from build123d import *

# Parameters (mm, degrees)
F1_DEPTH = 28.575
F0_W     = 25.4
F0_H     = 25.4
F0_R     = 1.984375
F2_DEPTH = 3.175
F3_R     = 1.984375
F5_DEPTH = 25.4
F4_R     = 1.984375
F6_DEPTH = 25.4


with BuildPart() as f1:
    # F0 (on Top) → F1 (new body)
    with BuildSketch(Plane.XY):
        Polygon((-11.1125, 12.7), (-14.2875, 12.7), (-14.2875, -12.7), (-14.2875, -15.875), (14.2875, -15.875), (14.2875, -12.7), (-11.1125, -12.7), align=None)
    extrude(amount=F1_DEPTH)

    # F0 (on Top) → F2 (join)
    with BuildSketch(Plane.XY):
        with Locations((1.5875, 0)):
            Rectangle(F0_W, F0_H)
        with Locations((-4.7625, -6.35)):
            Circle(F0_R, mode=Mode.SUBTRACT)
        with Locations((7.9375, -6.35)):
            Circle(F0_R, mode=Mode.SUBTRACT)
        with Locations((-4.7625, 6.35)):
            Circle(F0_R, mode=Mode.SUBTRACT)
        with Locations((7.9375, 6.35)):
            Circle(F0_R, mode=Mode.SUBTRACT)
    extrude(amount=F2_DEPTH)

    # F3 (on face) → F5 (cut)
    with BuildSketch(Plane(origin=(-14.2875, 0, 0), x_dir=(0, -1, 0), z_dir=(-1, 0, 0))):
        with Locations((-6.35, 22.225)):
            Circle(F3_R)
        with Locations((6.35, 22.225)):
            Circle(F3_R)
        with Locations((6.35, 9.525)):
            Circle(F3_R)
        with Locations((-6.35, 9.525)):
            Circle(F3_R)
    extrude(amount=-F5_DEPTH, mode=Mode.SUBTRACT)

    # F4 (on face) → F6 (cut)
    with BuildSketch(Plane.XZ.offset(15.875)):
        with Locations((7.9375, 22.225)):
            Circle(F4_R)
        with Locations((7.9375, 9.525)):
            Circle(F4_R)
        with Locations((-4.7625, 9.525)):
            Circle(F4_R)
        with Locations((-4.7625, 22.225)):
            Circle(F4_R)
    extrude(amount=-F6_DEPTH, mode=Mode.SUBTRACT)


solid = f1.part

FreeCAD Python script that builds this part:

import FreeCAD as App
import Part
import Sketcher
Q = App.Units.Quantity

doc = App.newDocument("Part")
params = doc.addObject("Spreadsheet::Sheet", "Params")
for row, (alias, value) in enumerate([
    ("sketch1_width", "1 in"),
    ("sketch1_width2", "0.125 in"),
    ("pad1_length", "1.125 in"),
    ("sketch2_width", "1 in"),
    ("sketch2_diameter", "0.15625 in"),
    ("pad2_length", "0.125 in"),
    ("sketch3_diameter", "0.15625 in"),
    ("pocket1_length", "1 in"),
    ("sketch4_diameter", "0.15625 in"),
    ("pocket2_length", "1 in"),
], start=1):
    params.set(f"A{row}", alias)
    params.set(f"B{row}", "=" + value)
    params.setAlias(f"B{row}", alias)

body = doc.addObject("PartDesign::Body", "Body")

# Sketch on XY plane
sketch1 = body.newObject("Sketcher::SketchObject", "Sketch")
sketch1.AttachmentSupport = (doc.getObject("XY_Plane"), [""])
sketch1.MapMode = "FlatFace"
sketch1.addGeometry(Part.LineSegment(App.Vector(-11.1, 12.7, 0), App.Vector(-14.3, 12.7, 0)), False)
sketch1.addGeometry(Part.LineSegment(App.Vector(-14.3, 12.7, 0), App.Vector(-14.3, -15.9, 0)), False)
sketch1.addGeometry(Part.LineSegment(App.Vector(-14.3, -15.9, 0), App.Vector(14.3, -15.9, 0)), False)
sketch1.addGeometry(Part.LineSegment(App.Vector(14.3, -15.9, 0), App.Vector(14.3, -12.7, 0)), False)
sketch1.addGeometry(Part.LineSegment(App.Vector(14.3, -12.7, 0), App.Vector(-11.1, -12.7, 0)), False)
sketch1.addGeometry(Part.LineSegment(App.Vector(-11.1, -12.7, 0), App.Vector(-11.1, 12.7, 0)), False)
sketch1.addConstraint(Sketcher.Constraint("Coincident", 0, 2, 1, 1))
sketch1.addConstraint(Sketcher.Constraint("Coincident", 1, 2, 2, 1))
sketch1.addConstraint(Sketcher.Constraint("Coincident", 2, 2, 3, 1))
sketch1.addConstraint(Sketcher.Constraint("Coincident", 3, 2, 4, 1))
sketch1.addConstraint(Sketcher.Constraint("Coincident", 4, 2, 5, 1))
sketch1.addConstraint(Sketcher.Constraint("Coincident", 5, 2, 0, 1))
sketch1.addConstraint(Sketcher.Constraint("Horizontal", 0))
sketch1.addConstraint(Sketcher.Constraint("Vertical", 1))
sketch1.addConstraint(Sketcher.Constraint("Horizontal", 2))
sketch1.addConstraint(Sketcher.Constraint("Vertical", 3))
sketch1.addConstraint(Sketcher.Constraint("Horizontal", 4))
sketch1.addConstraint(Sketcher.Constraint("Vertical", 5))
sketch1.addConstraint(Sketcher.Constraint("Symmetric", 0, 2, 3, 2, -1, 1))
sketch1.addConstraint(Sketcher.Constraint("Equal", 2, 1))
sketch1.addConstraint(Sketcher.Constraint("Equal", 0, 3))
sketch1.addConstraint(Sketcher.Constraint("DistanceX", 4, 2, 4, 1, Q("1 in")))
sketch1.addConstraint(Sketcher.Constraint("DistanceX", 0, 2, 0, 1, Q("0.125 in")))
sketch1.setExpression("Constraints[15]", "Params.sketch1_width")
sketch1.setExpression("Constraints[16]", "Params.sketch1_width2")
pad1 = body.newObject("PartDesign::Pad", "Pad")
pad1.Profile = sketch1
pad1.setExpression("Length", "Params.pad1_length")

# Sketch on XY plane
sketch2 = body.newObject("Sketcher::SketchObject", "Sketch001")
sketch2.AttachmentSupport = (doc.getObject("XY_Plane"), [""])
sketch2.MapMode = "FlatFace"
sketch2.addGeometry(Part.LineSegment(App.Vector(-11.1, 12.7, 0), App.Vector(-11.1, -12.7, 0)), False)
sketch2.addGeometry(Part.LineSegment(App.Vector(-11.1, -12.7, 0), App.Vector(14.3, -12.7, 0)), False)
sketch2.addGeometry(Part.LineSegment(App.Vector(14.3, -12.7, 0), App.Vector(14.3, 12.7, 0)), False)
sketch2.addGeometry(Part.LineSegment(App.Vector(14.3, 12.7, 0), App.Vector(-11.1, 12.7, 0)), False)
sketch2.addGeometry(Part.Circle(App.Vector(-4.8, -6.3, 0), App.Vector(0, 0, 1), 2), False)
sketch2.addGeometry(Part.Circle(App.Vector(7.9, -6.3, 0), App.Vector(0, 0, 1), 2), False)
sketch2.addGeometry(Part.Circle(App.Vector(-4.8, 6.3, 0), App.Vector(0, 0, 1), 2), False)
sketch2.addGeometry(Part.Circle(App.Vector(7.9, 6.3, 0), App.Vector(0, 0, 1), 2), False)
sketch2.addConstraint(Sketcher.Constraint("Coincident", 0, 2, 1, 1))
sketch2.addConstraint(Sketcher.Constraint("Coincident", 1, 2, 2, 1))
sketch2.addConstraint(Sketcher.Constraint("Coincident", 2, 2, 3, 1))
sketch2.addConstraint(Sketcher.Constraint("Coincident", 3, 2, 0, 1))
sketch2.addConstraint(Sketcher.Constraint("Vertical", 0))
sketch2.addConstraint(Sketcher.Constraint("Horizontal", 1))
sketch2.addConstraint(Sketcher.Constraint("Vertical", 2))
sketch2.addConstraint(Sketcher.Constraint("Horizontal", 3))
sketch2.addConstraint(Sketcher.Constraint("Equal", 4, 5))
sketch2.addConstraint(Sketcher.Constraint("Equal", 5, 6))
sketch2.addConstraint(Sketcher.Constraint("Equal", 6, 7))
sketch2.addConstraint(Sketcher.Constraint("Symmetric", 4, 3, 6, 3, -1))
sketch2.addConstraint(Sketcher.Constraint("Symmetric", 5, 3, 7, 3, -1))
sketch2.addConstraint(Sketcher.Constraint("Horizontal", 4, 3, 5, 3))
sketch2.addConstraint(Sketcher.Constraint("Equal", 3, 0))
sketch2.addConstraint(Sketcher.Constraint("DistanceX", 1, 1, 1, 2, Q("1 in")))
sketch2.addConstraint(Sketcher.Constraint("Diameter", 4, Q("0.15625 in")))
sketch2.addConstraint(Sketcher.Constraint("DistanceY", 0, 2, -1, 1, Q("0.5 in")))
sketch2.addConstraint(Sketcher.Constraint("DistanceX", 4, 3, 5, 3, Q("0.5 in")))
sketch2.addConstraint(Sketcher.Constraint("DistanceY", 4, 3, 6, 3, Q("0.5 in")))
sketch2.addConstraint(Sketcher.Constraint("DistanceX", 0, 2, 4, 3, Q("0.25 in")))
sketch2.addConstraint(Sketcher.Constraint("DistanceX", 4, 3, -1, 1, Q("0.1875 in")))
sketch2.setExpression("Constraints[15]", "Params.sketch2_width")
sketch2.setExpression("Constraints[16]", "Params.sketch2_diameter")
pad2 = body.newObject("PartDesign::Pad", "Pad001")
pad2.Profile = sketch2
pad2.setExpression("Length", "Params.pad2_length")

# Sketch on YZ plane
sketch3 = body.newObject("Sketcher::SketchObject", "Sketch002")
sketch3.AttachmentSupport = (doc.getObject("YZ_Plane"), [""])
sketch3.MapMode = "FlatFace"
sketch3.AttachmentOffset = App.Placement(App.Vector(0, 0, -0.5625 * 25.4), App.Rotation())
sketch3.addGeometry(Part.Circle(App.Vector(6.3, 22.2, 0), App.Vector(0, 0, 1), 2), False)
sketch3.addGeometry(Part.Circle(App.Vector(-6.3, 22.2, 0), App.Vector(0, 0, 1), 2), False)
sketch3.addGeometry(Part.Circle(App.Vector(-6.3, 9.5, 0), App.Vector(0, 0, 1), 2), False)
sketch3.addGeometry(Part.Circle(App.Vector(6.3, 9.5, 0), App.Vector(0, 0, 1), 2), False)
sketch3.addConstraint(Sketcher.Constraint("Equal", 0, 1))
sketch3.addConstraint(Sketcher.Constraint("Equal", 1, 2))
sketch3.addConstraint(Sketcher.Constraint("Equal", 2, 3))
sketch3.addConstraint(Sketcher.Constraint("Symmetric", 0, 3, 1, 3, -2))
sketch3.addConstraint(Sketcher.Constraint("Symmetric", 2, 3, 3, 3, -2))
sketch3.addConstraint(Sketcher.Constraint("Vertical", 1, 3, 2, 3))
sketch3.addConstraint(Sketcher.Constraint("Diameter", 0, Q("0.15625 in")))
sketch3.addConstraint(Sketcher.Constraint("DistanceX", 1, 3, 0, 3, Q("0.5 in")))
sketch3.addConstraint(Sketcher.Constraint("DistanceY", 2, 3, 1, 3, Q("0.5 in")))
sketch3.addConstraint(Sketcher.Constraint("DistanceY", -1, 1, 0, 3, Q("0.875 in")))
sketch3.setExpression("Constraints[6]", "Params.sketch3_diameter")
pocket1 = body.newObject("PartDesign::Pocket", "Pocket")
pocket1.Profile = sketch3
pocket1.setExpression("Length", "Params.pocket1_length")
pocket1.Reversed = True

# Sketch on XZ plane
sketch4 = body.newObject("Sketcher::SketchObject", "Sketch003")
sketch4.AttachmentSupport = (doc.getObject("XZ_Plane"), [""])
sketch4.MapMode = "FlatFace"
sketch4.AttachmentOffset = App.Placement(App.Vector(0, 0, 0.625 * 25.4), App.Rotation())
sketch4.addGeometry(Part.Circle(App.Vector(7.9, 22.2, 0), App.Vector(0, 0, 1), 2), False)
sketch4.addGeometry(Part.Circle(App.Vector(7.9, 9.5, 0), App.Vector(0, 0, 1), 2), False)
sketch4.addGeometry(Part.Circle(App.Vector(-4.8, 9.5, 0), App.Vector(0, 0, 1), 2), False)
sketch4.addGeometry(Part.Circle(App.Vector(-4.8, 22.2, 0), App.Vector(0, 0, 1), 2), False)
sketch4.addConstraint(Sketcher.Constraint("Equal", 0, 1))
sketch4.addConstraint(Sketcher.Constraint("Equal", 1, 2))
sketch4.addConstraint(Sketcher.Constraint("Equal", 2, 3))
sketch4.addConstraint(Sketcher.Constraint("Horizontal", 1, 3, 2, 3))
sketch4.addConstraint(Sketcher.Constraint("Horizontal", 0, 3, 3, 3))
sketch4.addConstraint(Sketcher.Constraint("Vertical", 0, 3, 1, 3))
sketch4.addConstraint(Sketcher.Constraint("Vertical", 2, 3, 3, 3))
sketch4.addConstraint(Sketcher.Constraint("Diameter", 0, Q("0.15625 in")))
sketch4.addConstraint(Sketcher.Constraint("DistanceY", 1, 3, 0, 3, Q("0.5 in")))
sketch4.addConstraint(Sketcher.Constraint("DistanceX", 2, 3, 1, 3, Q("0.5 in")))
sketch4.addConstraint(Sketcher.Constraint("DistanceX", -1, 1, 0, 3, Q("0.3125 in")))
sketch4.addConstraint(Sketcher.Constraint("DistanceY", -1, 1, 0, 3, Q("0.875 in")))
sketch4.setExpression("Constraints[7]", "Params.sketch4_diameter")
pocket2 = body.newObject("PartDesign::Pocket", "Pocket001")
pocket2.Profile = sketch4
pocket2.setExpression("Length", "Params.pocket2_length")

doc.recompute()
